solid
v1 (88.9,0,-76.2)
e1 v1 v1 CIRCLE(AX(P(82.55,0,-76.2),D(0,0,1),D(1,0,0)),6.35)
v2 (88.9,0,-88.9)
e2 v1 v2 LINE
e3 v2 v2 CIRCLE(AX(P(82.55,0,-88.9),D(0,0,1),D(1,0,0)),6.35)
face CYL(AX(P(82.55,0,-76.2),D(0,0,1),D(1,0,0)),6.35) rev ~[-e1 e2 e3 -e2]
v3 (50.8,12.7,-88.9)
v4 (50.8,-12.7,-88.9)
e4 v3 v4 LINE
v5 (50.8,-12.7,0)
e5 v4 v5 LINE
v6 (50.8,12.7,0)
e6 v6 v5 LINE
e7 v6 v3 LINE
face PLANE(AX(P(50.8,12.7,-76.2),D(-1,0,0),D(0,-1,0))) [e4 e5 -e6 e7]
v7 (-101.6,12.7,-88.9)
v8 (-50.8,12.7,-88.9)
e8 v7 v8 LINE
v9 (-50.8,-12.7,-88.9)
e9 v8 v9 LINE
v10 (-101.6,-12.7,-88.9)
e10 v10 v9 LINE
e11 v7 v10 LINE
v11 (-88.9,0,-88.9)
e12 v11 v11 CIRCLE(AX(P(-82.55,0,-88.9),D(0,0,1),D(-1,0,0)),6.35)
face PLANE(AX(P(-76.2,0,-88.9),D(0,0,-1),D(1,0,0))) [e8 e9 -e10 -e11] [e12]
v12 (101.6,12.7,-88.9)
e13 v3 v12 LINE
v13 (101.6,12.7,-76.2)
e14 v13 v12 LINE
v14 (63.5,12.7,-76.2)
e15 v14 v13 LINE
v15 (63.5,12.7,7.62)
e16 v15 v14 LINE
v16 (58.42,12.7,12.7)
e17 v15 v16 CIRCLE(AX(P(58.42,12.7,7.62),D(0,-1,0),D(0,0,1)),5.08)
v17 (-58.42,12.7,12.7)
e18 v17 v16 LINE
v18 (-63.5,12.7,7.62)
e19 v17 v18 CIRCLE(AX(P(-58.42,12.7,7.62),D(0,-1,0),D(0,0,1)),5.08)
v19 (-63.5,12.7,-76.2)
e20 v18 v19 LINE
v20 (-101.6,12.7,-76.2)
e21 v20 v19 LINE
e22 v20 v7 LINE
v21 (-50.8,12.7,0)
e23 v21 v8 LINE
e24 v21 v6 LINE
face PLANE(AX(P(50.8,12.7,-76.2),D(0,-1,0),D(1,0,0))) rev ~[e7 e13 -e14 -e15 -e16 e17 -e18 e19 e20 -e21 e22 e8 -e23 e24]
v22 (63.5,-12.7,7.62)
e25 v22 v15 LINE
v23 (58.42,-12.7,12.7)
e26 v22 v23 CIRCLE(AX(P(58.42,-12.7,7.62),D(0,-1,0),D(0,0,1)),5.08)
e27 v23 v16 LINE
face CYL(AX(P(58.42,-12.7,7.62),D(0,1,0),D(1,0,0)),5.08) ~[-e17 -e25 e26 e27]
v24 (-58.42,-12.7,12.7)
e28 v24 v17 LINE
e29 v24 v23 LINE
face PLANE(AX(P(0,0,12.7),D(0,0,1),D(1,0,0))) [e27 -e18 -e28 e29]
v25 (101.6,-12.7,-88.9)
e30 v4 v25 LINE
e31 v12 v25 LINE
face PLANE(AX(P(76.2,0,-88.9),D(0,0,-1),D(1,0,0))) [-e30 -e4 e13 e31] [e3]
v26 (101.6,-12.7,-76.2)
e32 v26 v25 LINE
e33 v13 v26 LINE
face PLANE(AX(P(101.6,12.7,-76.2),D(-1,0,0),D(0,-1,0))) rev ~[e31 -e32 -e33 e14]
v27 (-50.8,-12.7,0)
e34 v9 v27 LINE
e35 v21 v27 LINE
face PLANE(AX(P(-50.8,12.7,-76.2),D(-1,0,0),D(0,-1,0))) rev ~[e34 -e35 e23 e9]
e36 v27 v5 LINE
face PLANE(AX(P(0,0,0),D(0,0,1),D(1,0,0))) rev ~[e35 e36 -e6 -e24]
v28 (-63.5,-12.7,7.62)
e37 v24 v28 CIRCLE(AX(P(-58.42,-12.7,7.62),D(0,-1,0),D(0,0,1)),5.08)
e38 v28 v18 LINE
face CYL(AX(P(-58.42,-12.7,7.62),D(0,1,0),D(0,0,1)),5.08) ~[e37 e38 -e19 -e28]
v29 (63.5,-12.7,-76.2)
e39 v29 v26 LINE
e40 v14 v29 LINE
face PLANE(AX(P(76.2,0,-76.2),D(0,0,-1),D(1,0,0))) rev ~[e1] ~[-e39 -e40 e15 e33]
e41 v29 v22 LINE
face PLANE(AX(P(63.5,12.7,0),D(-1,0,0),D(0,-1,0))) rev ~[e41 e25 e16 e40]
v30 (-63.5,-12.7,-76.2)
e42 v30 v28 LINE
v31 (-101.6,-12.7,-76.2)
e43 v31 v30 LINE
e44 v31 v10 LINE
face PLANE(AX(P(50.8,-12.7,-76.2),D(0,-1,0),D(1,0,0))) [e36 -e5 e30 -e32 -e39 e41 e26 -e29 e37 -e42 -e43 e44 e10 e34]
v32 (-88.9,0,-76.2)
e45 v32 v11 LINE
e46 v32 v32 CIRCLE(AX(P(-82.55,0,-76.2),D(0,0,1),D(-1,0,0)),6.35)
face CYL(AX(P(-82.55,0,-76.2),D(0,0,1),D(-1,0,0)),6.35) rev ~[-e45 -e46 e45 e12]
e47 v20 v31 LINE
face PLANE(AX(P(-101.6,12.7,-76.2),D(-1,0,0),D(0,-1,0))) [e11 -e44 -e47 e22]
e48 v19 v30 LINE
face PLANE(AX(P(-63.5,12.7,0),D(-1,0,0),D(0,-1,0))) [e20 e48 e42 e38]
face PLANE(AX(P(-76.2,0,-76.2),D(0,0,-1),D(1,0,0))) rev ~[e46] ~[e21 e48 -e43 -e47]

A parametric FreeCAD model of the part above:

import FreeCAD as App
import Part
import Sketcher
from FreeCAD import Vector
Q = App.Units.Quantity


def edges_at(feature, points):
    """Names of the edges that pass closest to the given points."""
    edges = feature.Shape.Edges
    near = lambda p: min(range(len(edges)), key=lambda i: edges[i].distToShape(Part.Vertex(*p))[0])
    return sorted({f"Edge{near(p) + 1}" for p in points})


def add_polygon(sketch, points):
    """Adds a closed chain of lines whose ends are joined by coincident constraints."""
    first, n = sketch.GeometryCount, len(points)
    for a, b in zip(points, points[1:] + points[:1]):
        sketch.addGeometry(Part.LineSegment(App.Vector(*a, 0), App.Vector(*b, 0)), False)
    for i in range(n):
        sketch.addConstraint(Sketcher.Constraint("Coincident", first + i, 2, first + (i + 1) % n, 1))

doc = App.newDocument("Part")
body = doc.addObject("PartDesign::Body", "Body")

# Sketch on XY plane
sketch1 = doc.addObject("Sketcher::SketchObject", "Sketch")
body.addObject(sketch1)
sketch1.AttachmentSupport = (doc.XY_Plane, [""])
sketch1.MapMode = "FlatFace"
add_polygon(sketch1, [(-63.5, 12.7), (-63.5, -12.7), (63.5, -12.7), (63.5, 12.7)])  # lines 0-3
sketch1.addConstraint([
    Sketcher.Constraint("Vertical", 0),
    Sketcher.Constraint("Horizontal", 1),
    Sketcher.Constraint("Vertical", 2),
    Sketcher.Constraint("Horizontal", 3),
    Sketcher.Constraint("Symmetric", 0, 2, 2, 2, -1, 1),
    Sketcher.Constraint("DistanceX", 1, 1, 1, 2, Q("5 in")),
    Sketcher.Constraint("DistanceY", 0, 2, 0, 1, Q("1 in")),
])
pad1 = doc.addObject("PartDesign::Pad", "Pad")
body.addObject(pad1)
pad1.Profile = sketch1
pad1.Length = Q("0.5 in")

# Sketch on XY plane
sketch2 = doc.addObject("Sketcher::SketchObject", "Sketch001")
body.addObject(sketch2)
sketch2.AttachmentSupport = (doc.XY_Plane, [""])
sketch2.MapMode = "FlatFace"
add_polygon(sketch2, [(50.8, -12.7), (50.8, 12.7), (63.5, 12.7), (63.5, -12.7)])  # lines 0-3
sketch2.addConstraint([
    Sketcher.Constraint("Vertical", 0),
    Sketcher.Constraint("Horizontal", 1),
    Sketcher.Constraint("Vertical", 2),
    Sketcher.Constraint("Horizontal", 3),
    Sketcher.Constraint("DistanceY", 0, 1, 0, 2, Q("1 in")),
    Sketcher.Constraint("DistanceX", 1, 1, 1, 2, Q("0.5 in")),
    Sketcher.Constraint("DistanceX", -1, 1, 0, 2, Q("2 in")),
    Sketcher.Constraint("DistanceY", -1, 1, 0, 2, Q("0.5 in")),
])
pad2 = doc.addObject("PartDesign::Pad", "Pad001")
body.addObject(pad2)
pad2.Profile = sketch2
pad2.Length = Q("3 in")
pad2.Reversed = True

# Sketch on XY plane
sketch3 = doc.addObject("Sketcher::SketchObject", "Sketch002")
body.addObject(sketch3)
sketch3.AttachmentSupport = (doc.XY_Plane, [""])
sketch3.MapMode = "FlatFace"
add_polygon(sketch3, [(-63.5, -12.7), (-63.5, 12.7), (-50.8, 12.7), (-50.8, -12.7)])  # lines 0-3
sketch3.addConstraint([
    Sketcher.Constraint("Vertical", 0),
    Sketcher.Constraint("Horizontal", 1),
    Sketcher.Constraint("Vertical", 2),
    Sketcher.Constraint("Horizontal", 3),
    Sketcher.Constraint("DistanceY", 0, 1, 0, 2, Q("1 in")),
    Sketcher.Constraint("DistanceX", 1, 1, 1, 2, Q("0.5 in")),
    Sketcher.Constraint("DistanceX", 1, 2, -1, 1, Q("2 in")),
    Sketcher.Constraint("DistanceY", -1, 1, 0, 2, Q("0.5 in")),
])
pad3 = doc.addObject("PartDesign::Pad", "Pad002")
body.addObject(pad3)
pad3.Profile = sketch3
pad3.Length = Q("3 in")
pad3.Reversed = True

# Sketch on XY plane
sketch4 = doc.addObject("Sketcher::SketchObject", "Sketch003")
body.addObject(sketch4)
sketch4.AttachmentSupport = (doc.XY_Plane, [""])
sketch4.MapMode = "FlatFace"
sketch4.AttachmentOffset = App.Placement(Vector(0, 0, -3 * 25.4), App.Rotation())
add_polygon(sketch4, [(-101.6, -12.7), (-101.6, 12.7), (-50.8, 12.7), (-50.8, -12.7)])  # lines 0-3
sketch4.addConstraint([
    Sketcher.Constraint("Vertical", 0),
    Sketcher.Constraint("Horizontal", 1),
    Sketcher.Constraint("Vertical", 2),
    Sketcher.Constraint("Horizontal", 3),
    Sketcher.Constraint("DistanceX", 1, 1, 1, 2, Q("2 in")),
    Sketcher.Constraint("DistanceY", 0, 1, 0, 2, Q("1 in")),
    Sketcher.Constraint("DistanceX", 0, 2, -1, 1, Q("4 in")),
    Sketcher.Constraint("DistanceY", -1, 1, 0, 2, Q("0.5 in")),
])
pad4 = doc.addObject("PartDesign::Pad", "Pad003")
body.addObject(pad4)
pad4.Profile = sketch4
pad4.Length = Q("0.5 in")
pad4.Reversed = True

# Sketch on XY plane
sketch5 = doc.addObject("Sketcher::SketchObject", "Sketch004")
body.addObject(sketch5)
sketch5.AttachmentSupport = (doc.XY_Plane, [""])
sketch5.MapMode = "FlatFace"
sketch5.AttachmentOffset = App.Placement(Vector(0, 0, -3 * 25.4), App.Rotation())
add_polygon(sketch5, [(50.8, -12.7), (50.8, 12.7), (101.6, 12.7), (101.6, -12.7)])  # lines 0-3
sketch5.addConstraint([
    Sketcher.Constraint("Vertical", 0),
    Sketcher.Constraint("Horizontal", 1),
    Sketcher.Constraint("Vertical", 2),
    Sketcher.Constraint("Horizontal", 3),
    Sketcher.Constraint("DistanceX", 1, 1, 1, 2, Q("2 in")),
    Sketcher.Constraint("DistanceY", 0, 1, 0, 2, Q("1 in")),
    Sketcher.Constraint("DistanceX", -1, 1, 0, 2, Q("2 in")),
    Sketcher.Constraint("DistanceY", -1, 1, 0, 2, Q("0.5 in")),
])
pad5 = doc.addObject("PartDesign::Pad", "Pad004")
body.addObject(pad5)
pad5.Profile = sketch5
pad5.Length = Q("0.5 in")
pad5.Reversed = True

# Sketch on XY plane
sketch6 = doc.addObject("Sketcher::SketchObject", "Sketch005")
body.addObject(sketch6)
sketch6.AttachmentSupport = (doc.XY_Plane, [""])
sketch6.MapMode = "FlatFace"
sketch6.AttachmentOffset = App.Placement(Vector(0, 0, -3 * 25.4), App.Rotation())
sketch6.addGeometry(Part.Circle(Vector(82.55, 0, 0), Vector(0, 0, 1), 6.35), False)
sketch6.addConstraint([
    Sketcher.Constraint("PointOnObject", 0, 3, -1),
    Sketcher.Constraint("Diameter", 0, Q("0.5 in")),
    Sketcher.Constraint("DistanceX", -1, 1, 0, 3, Q("3.25 in")),
])
pocket1 = doc.addObject("PartDesign::Pocket", "Pocket")
body.addObject(pocket1)
pocket1.Profile = sketch6
pocket1.Length = Q("1 in")

# Sketch on XY plane
sketch7 = doc.addObject("Sketcher::SketchObject", "Sketch006")
body.addObject(sketch7)
sketch7.AttachmentSupport = (doc.XY_Plane, [""])
sketch7.MapMode = "FlatFace"
sketch7.AttachmentOffset = App.Placement(Vector(0, 0, -3 * 25.4), App.Rotation())
sketch7.addGeometry(Part.Circle(Vector(-82.55, 0, 0), Vector(0, 0, 1), 6.35), False)
sketch7.addConstraint([
    Sketcher.Constraint("PointOnObject", 0, 3, -1),
    Sketcher.Constraint("Diameter", 0, Q("0.5 in")),
    Sketcher.Constraint("DistanceX", 0, 3, -1, 1, Q("3.25 in")),
])
pocket2 = doc.addObject("PartDesign::Pocket", "Pocket001")
body.addObject(pocket2)
pocket2.Profile = sketch7
pocket2.Length = Q("1 in")
doc.recompute()

fillet = doc.addObject("PartDesign::Fillet", "Fillet")
body.addObject(fillet)
fillet.Base = (pocket2, edges_at(pocket2, [(63.5, 0, 12.7)]))
fillet.Radius = Q("0.2 in")
doc.recompute()

fillet2 = doc.addObject("PartDesign::Fillet", "Fillet001")
body.addObject(fillet2)
fillet2.Base = (fillet, edges_at(fillet, [(-63.5, 0, 12.7)]))
fillet2.Radius = Q("0.2 in")

doc.recompute()
